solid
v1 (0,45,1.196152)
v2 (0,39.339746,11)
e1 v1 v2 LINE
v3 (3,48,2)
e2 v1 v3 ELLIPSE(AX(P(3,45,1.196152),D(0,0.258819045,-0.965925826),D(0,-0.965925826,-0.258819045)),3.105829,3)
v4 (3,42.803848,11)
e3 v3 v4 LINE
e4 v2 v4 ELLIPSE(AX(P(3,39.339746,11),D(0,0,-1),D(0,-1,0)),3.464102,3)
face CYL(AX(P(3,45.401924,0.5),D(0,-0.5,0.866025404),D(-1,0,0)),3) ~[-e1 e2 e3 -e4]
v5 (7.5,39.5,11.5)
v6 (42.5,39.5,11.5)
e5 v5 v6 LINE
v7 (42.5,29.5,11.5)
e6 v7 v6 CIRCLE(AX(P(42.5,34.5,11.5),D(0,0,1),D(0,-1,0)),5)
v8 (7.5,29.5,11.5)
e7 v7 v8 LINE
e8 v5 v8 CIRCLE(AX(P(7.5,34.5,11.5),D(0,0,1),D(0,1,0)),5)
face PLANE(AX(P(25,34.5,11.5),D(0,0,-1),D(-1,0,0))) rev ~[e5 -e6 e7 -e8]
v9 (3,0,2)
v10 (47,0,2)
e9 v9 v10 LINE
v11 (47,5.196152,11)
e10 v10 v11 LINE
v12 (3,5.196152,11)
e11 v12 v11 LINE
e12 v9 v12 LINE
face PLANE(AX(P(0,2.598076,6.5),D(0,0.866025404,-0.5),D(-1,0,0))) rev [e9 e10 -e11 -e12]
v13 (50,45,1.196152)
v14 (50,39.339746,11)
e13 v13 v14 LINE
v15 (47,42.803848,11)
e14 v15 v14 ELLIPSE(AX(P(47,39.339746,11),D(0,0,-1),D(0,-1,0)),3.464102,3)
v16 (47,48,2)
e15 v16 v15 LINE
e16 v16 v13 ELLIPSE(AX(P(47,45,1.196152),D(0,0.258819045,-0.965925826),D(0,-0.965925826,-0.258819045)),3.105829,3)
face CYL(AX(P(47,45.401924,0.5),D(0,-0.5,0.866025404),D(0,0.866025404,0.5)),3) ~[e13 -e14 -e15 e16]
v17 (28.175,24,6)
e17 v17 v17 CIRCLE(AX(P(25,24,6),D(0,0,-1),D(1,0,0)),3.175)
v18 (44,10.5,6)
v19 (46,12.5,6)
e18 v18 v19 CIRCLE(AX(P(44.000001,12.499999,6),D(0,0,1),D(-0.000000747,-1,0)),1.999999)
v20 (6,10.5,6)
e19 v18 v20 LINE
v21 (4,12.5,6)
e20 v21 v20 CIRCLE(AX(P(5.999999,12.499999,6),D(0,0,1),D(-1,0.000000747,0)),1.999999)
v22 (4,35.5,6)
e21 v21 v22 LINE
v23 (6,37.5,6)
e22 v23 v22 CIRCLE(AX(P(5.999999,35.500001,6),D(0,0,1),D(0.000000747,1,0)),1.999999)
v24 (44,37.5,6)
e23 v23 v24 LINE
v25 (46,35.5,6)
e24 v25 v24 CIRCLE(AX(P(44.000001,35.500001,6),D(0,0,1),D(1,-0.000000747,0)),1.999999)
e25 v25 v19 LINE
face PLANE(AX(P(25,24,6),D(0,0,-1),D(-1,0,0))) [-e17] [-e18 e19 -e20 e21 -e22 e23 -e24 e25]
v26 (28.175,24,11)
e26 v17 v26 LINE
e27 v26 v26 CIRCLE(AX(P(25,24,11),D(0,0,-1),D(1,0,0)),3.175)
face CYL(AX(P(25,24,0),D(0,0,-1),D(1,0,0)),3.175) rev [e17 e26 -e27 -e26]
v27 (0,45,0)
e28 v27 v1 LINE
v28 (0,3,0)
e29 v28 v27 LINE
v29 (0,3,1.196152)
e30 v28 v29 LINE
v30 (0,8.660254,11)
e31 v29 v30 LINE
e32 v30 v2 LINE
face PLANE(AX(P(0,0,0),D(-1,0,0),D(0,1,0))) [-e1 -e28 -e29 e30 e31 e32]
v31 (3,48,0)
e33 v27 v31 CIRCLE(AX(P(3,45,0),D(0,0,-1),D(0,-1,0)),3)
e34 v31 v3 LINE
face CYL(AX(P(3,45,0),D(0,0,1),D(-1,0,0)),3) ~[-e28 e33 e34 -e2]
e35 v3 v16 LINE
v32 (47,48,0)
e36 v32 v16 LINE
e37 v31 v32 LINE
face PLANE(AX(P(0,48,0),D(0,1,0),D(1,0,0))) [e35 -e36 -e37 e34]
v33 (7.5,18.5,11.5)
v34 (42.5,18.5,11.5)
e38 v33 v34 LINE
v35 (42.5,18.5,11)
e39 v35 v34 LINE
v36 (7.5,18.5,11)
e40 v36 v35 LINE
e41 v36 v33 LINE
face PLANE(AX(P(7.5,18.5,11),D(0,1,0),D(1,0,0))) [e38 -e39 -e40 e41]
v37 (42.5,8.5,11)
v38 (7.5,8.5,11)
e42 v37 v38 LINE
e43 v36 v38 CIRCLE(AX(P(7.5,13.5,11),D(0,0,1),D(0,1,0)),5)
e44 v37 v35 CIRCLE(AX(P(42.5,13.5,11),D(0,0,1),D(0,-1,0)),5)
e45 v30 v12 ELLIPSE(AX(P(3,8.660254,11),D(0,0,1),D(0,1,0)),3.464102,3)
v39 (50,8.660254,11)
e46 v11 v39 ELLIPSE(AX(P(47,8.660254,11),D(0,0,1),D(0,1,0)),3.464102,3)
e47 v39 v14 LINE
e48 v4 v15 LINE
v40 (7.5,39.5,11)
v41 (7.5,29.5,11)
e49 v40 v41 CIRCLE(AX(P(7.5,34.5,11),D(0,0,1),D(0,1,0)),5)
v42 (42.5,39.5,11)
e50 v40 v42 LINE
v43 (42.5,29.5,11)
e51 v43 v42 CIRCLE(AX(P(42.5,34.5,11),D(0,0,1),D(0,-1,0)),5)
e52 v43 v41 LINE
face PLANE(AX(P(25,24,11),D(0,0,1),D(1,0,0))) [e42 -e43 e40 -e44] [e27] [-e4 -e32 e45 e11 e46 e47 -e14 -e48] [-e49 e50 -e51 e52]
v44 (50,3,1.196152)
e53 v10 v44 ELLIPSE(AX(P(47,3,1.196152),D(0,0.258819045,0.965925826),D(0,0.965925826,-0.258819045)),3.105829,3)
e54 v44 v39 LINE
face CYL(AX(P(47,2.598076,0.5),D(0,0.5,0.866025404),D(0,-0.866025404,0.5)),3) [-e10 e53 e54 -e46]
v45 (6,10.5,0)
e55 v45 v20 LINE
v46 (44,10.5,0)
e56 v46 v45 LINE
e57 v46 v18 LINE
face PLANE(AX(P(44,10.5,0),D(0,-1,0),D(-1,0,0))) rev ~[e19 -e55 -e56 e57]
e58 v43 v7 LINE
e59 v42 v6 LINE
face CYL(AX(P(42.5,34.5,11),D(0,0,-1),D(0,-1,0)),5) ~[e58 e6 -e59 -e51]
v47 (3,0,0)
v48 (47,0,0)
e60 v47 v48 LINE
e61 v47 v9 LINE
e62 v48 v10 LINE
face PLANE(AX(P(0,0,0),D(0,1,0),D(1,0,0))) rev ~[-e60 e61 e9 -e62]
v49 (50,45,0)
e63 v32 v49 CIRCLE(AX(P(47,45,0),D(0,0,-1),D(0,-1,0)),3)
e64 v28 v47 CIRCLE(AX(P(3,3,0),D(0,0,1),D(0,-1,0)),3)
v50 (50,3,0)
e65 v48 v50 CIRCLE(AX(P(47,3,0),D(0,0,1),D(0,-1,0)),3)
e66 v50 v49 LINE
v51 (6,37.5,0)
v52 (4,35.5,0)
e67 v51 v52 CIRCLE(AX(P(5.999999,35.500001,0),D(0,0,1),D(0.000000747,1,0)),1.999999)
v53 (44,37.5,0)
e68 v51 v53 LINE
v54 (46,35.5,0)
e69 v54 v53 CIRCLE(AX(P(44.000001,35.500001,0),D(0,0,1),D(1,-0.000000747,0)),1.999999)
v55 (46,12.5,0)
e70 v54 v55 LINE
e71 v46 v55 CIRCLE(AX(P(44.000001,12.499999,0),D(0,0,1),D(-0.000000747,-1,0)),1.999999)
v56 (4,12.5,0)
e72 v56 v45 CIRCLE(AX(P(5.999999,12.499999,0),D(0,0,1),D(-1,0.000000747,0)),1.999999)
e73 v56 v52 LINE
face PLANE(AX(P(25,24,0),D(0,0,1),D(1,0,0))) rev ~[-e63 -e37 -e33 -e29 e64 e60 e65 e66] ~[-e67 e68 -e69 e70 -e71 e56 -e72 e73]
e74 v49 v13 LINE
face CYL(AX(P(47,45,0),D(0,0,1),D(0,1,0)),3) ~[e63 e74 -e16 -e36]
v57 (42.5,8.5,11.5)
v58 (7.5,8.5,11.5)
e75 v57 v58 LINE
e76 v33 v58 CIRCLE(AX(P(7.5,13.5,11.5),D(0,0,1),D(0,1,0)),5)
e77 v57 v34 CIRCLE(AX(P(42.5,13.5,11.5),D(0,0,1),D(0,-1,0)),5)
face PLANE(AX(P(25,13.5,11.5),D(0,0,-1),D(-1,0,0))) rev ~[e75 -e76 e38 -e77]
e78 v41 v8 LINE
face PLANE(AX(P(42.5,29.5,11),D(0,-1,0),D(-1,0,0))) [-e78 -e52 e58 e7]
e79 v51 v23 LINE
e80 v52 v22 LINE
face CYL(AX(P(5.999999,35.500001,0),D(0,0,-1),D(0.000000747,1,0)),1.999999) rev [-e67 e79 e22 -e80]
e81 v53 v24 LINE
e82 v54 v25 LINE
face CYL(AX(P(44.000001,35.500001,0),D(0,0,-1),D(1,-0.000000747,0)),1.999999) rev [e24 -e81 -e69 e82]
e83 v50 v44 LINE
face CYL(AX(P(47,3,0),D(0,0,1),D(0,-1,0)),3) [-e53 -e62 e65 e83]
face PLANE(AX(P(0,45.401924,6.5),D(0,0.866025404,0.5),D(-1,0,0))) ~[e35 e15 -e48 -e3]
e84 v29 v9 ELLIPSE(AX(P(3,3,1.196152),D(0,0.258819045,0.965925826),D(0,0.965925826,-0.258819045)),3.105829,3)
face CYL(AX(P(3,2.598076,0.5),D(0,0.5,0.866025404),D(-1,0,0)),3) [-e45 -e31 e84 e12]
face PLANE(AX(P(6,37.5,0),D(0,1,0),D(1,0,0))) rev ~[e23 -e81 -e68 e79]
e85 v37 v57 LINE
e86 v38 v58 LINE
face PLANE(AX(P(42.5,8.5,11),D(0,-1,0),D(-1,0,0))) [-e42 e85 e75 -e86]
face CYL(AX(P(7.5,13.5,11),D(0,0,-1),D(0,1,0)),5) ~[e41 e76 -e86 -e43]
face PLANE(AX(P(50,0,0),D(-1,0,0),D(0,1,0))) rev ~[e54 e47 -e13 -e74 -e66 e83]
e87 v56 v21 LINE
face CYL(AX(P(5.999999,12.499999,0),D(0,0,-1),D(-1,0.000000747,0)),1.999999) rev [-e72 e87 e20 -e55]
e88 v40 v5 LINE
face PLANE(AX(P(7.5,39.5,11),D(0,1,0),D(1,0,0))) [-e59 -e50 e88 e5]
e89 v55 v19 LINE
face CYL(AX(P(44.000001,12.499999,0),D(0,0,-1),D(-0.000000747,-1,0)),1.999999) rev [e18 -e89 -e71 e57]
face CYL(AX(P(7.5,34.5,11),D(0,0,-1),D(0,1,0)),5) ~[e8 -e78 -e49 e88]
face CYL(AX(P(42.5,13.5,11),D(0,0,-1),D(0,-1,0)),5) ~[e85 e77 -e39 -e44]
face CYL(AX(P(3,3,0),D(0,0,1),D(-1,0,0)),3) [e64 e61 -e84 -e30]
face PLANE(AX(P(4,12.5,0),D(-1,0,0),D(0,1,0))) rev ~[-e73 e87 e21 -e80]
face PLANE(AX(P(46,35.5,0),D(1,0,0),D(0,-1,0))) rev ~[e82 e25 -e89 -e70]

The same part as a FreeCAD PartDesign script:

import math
import FreeCAD as App
import Part
import Sketcher

V = App.Vector
Q = App.Units.Quantity


def edges_at(feature, points):
    """Names of the edges that pass closest to the given points."""
    edges = feature.Shape.Edges
    near = lambda p: min(range(len(edges)), key=lambda i: edges[i].distToShape(Part.Vertex(*p))[0])
    return sorted({f"Edge{near(p) + 1}" for p in points})


def add_polygon(sketch, points):
    """Adds a closed chain of lines whose ends are joined by coincident constraints."""
    first, n = sketch.GeometryCount, len(points)
    for a, b in zip(points, points[1:] + points[:1]):
        sketch.addGeometry(Part.LineSegment(App.Vector(*a, 0), App.Vector(*b, 0)), False)
    for i in range(n):
        sketch.addConstraint(Sketcher.Constraint("Coincident", first + i, 2, first + (i + 1) % n, 1))

doc = App.newDocument("Part")
body = doc.addObject("PartDesign::Body", "Body")

# Sketch on XY plane
sketch1 = doc.addObject("Sketcher::SketchObject", "Sketch")
body.addObject(sketch1)
sketch1.AttachmentSupport = (doc.XY_Plane, [""])
sketch1.MapMode = "FlatFace"
add_polygon(sketch1, [(0, 48), (0, 0), (50, 0), (50, 48)])  # lines 0-3
sketch1.addConstraint(Sketcher.Constraint("Vertical", 0))
sketch1.addConstraint(Sketcher.Constraint("Horizontal", 1))
sketch1.addConstraint(Sketcher.Constraint("Vertical", 2))
sketch1.addConstraint(Sketcher.Constraint("Horizontal", 3))
sketch1.addConstraint(Sketcher.Constraint("Coincident", 0, 2, -1, 1))
sketch1.addConstraint(Sketcher.Constraint("DistanceX", 1, 1, 1, 2, Q("50 mm")))
sketch1.addConstraint(Sketcher.Constraint("DistanceY", 0, 2, 0, 1, Q("48 mm")))
pad1 = doc.addObject("PartDesign::Pad", "Pad")
body.addObject(pad1)
pad1.Profile = sketch1
pad1.Length = 11
doc.recompute()

chamfer = doc.addObject("PartDesign::Chamfer", "Chamfer")
body.addObject(chamfer)
chamfer.Base = (pad1, edges_at(pad1, [(25, 0, 11)]))
chamfer.ChamferType = "Distance and Angle"
chamfer.Size = 9
chamfer.Angle = 30
doc.recompute()

chamfer2 = doc.addObject("PartDesign::Chamfer", "Chamfer001")
body.addObject(chamfer2)
chamfer2.Base = (chamfer, edges_at(chamfer, [(25, 48, 11)]))
chamfer2.ChamferType = "Distance and Angle"
chamfer2.Size = 9
chamfer2.Angle = 30
chamfer2.FlipDirection = True
doc.recompute()

fillet = doc.addObject("PartDesign::Fillet", "Fillet")
body.addObject(fillet)
fillet.Base = (chamfer2, edges_at(chamfer2, [
    (50, 2.598, 6.5),
    (50, 0, 1),
    (50, 45.402, 6.5),
    (50, 48, 1),
    (0, 45.402, 6.5),
    (0, 48, 1),
    (0, 2.598, 6.5),
    (0, 0, 1),
]))
fillet.Radius = 3

# Sketch on XY plane
sketch2 = doc.addObject("Sketcher::SketchObject", "Sketch001")
body.addObject(sketch2)
sketch2.AttachmentSupport = (doc.XY_Plane, [""])
sketch2.MapMode = "FlatFace"
sketch2.AttachmentOffset = App.Placement(V(0, 0, 11), App.Rotation())
sketch2.addGeometry(Part.LineSegment(V(42.5, 39.5, 0), V(7.5, 39.5, 0)), False)
sketch2.addGeometry(Part.ArcOfCircle(Part.Circle(V(7.5, 34.5, 0), V(0, 0, 1), 5), math.radians(90), math.radians(270)), False)
sketch2.addGeometry(Part.LineSegment(V(7.5, 29.5, 0), V(42.5, 29.5, 0)), False)
sketch2.addGeometry(Part.ArcOfCircle(Part.Circle(V(42.5, 34.5, 0), V(0, 0, 1), 5), math.radians(-90), math.radians(90)), False)
sketch2.addGeometry(Part.LineSegment(V(42.5, 18.5, 0), V(7.5, 18.5, 0)), False)
sketch2.addGeometry(Part.ArcOfCircle(Part.Circle(V(7.5, 13.5, 0), V(0, 0, 1), 5), math.radians(90), math.radians(270)), False)
sketch2.addGeometry(Part.LineSegment(V(7.5, 8.5, 0), V(42.5, 8.5, 0)), False)
sketch2.addGeometry(Part.ArcOfCircle(Part.Circle(V(42.5, 13.5, 0), V(0, 0, 1), 5), math.radians(-90), math.radians(90)), False)
sketch2.addConstraint(Sketcher.Constraint("Tangent", 0, 2, 1, 1))
sketch2.addConstraint(Sketcher.Constraint("Tangent", 1, 2, 2, 1))
sketch2.addConstraint(Sketcher.Constraint("Tangent", 2, 2, 3, 1))
sketch2.addConstraint(Sketcher.Constraint("Tangent", 3, 2, 0, 1))
sketch2.addConstraint(Sketcher.Constraint("Tangent", 4, 2, 5, 1))
sketch2.addConstraint(Sketcher.Constraint("Tangent", 5, 2, 6, 1))
sketch2.addConstraint(Sketcher.Constraint("Tangent", 6, 2, 7, 1))
sketch2.addConstraint(Sketcher.Constraint("Tangent", 7, 2, 4, 1))
sketch2.addConstraint(Sketcher.Constraint("Horizontal", 0))
sketch2.addConstraint(Sketcher.Constraint("Horizontal", 2))
sketch2.addConstraint(Sketcher.Constraint("Horizontal", 4))
sketch2.addConstraint(Sketcher.Constraint("Horizontal", 6))
sketch2.addConstraint(Sketcher.Constraint("Equal", 3, 5))
sketch2.addConstraint(Sketcher.Constraint("Vertical", 1, 3, 5, 3))
sketch2.addConstraint(Sketcher.Constraint("Vertical", 3, 3, 7, 3))
sketch2.addConstraint(Sketcher.Constraint("Radius", 1, Q("5 mm")))
sketch2.addConstraint(Sketcher.Constraint("DistanceX", 0, 2, 0, 1, Q("35 mm")))
sketch2.addConstraint(Sketcher.Constraint("DistanceY", 5, 3, 1, 3, Q("21 mm")))
sketch2.addConstraint(Sketcher.Constraint("DistanceX", -1, 1, 1, 3, Q("7.5 mm")))
sketch2.addConstraint(Sketcher.Constraint("DistanceY", -1, 1, 1, 3, Q("34.5 mm")))
pad2 = doc.addObject("PartDesign::Pad", "Pad001")
body.addObject(pad2)
pad2.Profile = sketch2
pad2.Length = 0.5

# Sketch on XY plane
sketch3 = doc.addObject("Sketcher::SketchObject", "Sketch002")
body.addObject(sketch3)
sketch3.AttachmentSupport = (doc.XY_Plane, [""])
sketch3.MapMode = "FlatFace"
sketch3.addGeometry(Part.Circle(V(25, 24, 0), V(0, 0, 1), 3.175), False)
sketch3.addConstraint(Sketcher.Constraint("Diameter", 0, Q("6.35 mm")))
sketch3.addConstraint(Sketcher.Constraint("DistanceX", -1, 1, 0, 3, Q("25 mm")))
sketch3.addConstraint(Sketcher.Constraint("DistanceY", -1, 1, 0, 3, Q("24 mm")))
pocket1 = doc.addObject("PartDesign::Pocket", "Pocket")
body.addObject(pocket1)
pocket1.Profile = sketch3
pocket1.Type = "ThroughAll"
pocket1.Reversed = True

# Sketch on XY plane
sketch4 = doc.addObject("Sketcher::SketchObject", "Sketch003")
body.addObject(sketch4)
sketch4.AttachmentSupport = (doc.XY_Plane, [""])
sketch4.MapMode = "FlatFace"
sketch4.addGeometry(Part.LineSegment(V(44, 37.5, 0), V(6, 37.5, 0)), False)
sketch4.addGeometry(Part.ArcOfCircle(Part.Circle(V(5.999999, 35.500001, 0), V(0, 0, 1), 1.999999), math.radians(89.999957), math.radians(180.000043)), False)
sketch4.addGeometry(Part.LineSegment(V(4, 35.5, 0), V(4, 12.5, 0)), False)
sketch4.addGeometry(Part.ArcOfCircle(Part.Circle(V(5.999999, 12.499999, 0), V(0, 0, 1), 1.999999), math.radians(179.999957), math.radians(270.000043)), False)
sketch4.addGeometry(Part.LineSegment(V(6, 10.5, 0), V(44, 10.5, 0)), False)
sketch4.addGeometry(Part.ArcOfCircle(Part.Circle(V(44.000001, 12.499999, 0), V(0, 0, 1), 1.999999), math.radians(-90.000043), math.radians(0.000043)), False)
sketch4.addGeometry(Part.LineSegment(V(46, 12.5, 0), V(46, 35.5, 0)), False)
sketch4.addGeometry(Part.ArcOfCircle(Part.Circle(V(44.000001, 35.500001, 0), V(0, 0, 1), 1.999999), math.radians(-0.000043), math.radians(90.000043)), False)
sketch4.addConstraint(Sketcher.Constraint("Tangent", 0, 2, 1, 1))
sketch4.addConstraint(Sketcher.Constraint("Tangent", 1, 2, 2, 1))
sketch4.addConstraint(Sketcher.Constraint("Tangent", 2, 2, 3, 1))
sketch4.addConstraint(Sketcher.Constraint("Tangent", 3, 2, 4, 1))
sketch4.addConstraint(Sketcher.Constraint("Tangent", 4, 2, 5, 1))
sketch4.addConstraint(Sketcher.Constraint("Tangent", 5, 2, 6, 1))
sketch4.addConstraint(Sketcher.Constraint("Tangent", 6, 2, 7, 1))
sketch4.addConstraint(Sketcher.Constraint("Tangent", 7, 2, 0, 1))
sketch4.addConstraint(Sketcher.Constraint("Horizontal", 0))
sketch4.addConstraint(Sketcher.Constraint("Vertical", 2))
sketch4.addConstraint(Sketcher.Constraint("Horizontal", 4))
sketch4.addConstraint(Sketcher.Constraint("Vertical", 6))
sketch4.addConstraint(Sketcher.Constraint("Equal", 1, 3))
sketch4.addConstraint(Sketcher.Constraint("Equal", 3, 5))
sketch4.addConstraint(Sketcher.Constraint("Equal", 5, 7))
sketch4.addConstraint(Sketcher.Constraint("Radius", 1, Q("1.999999 mm")))
sketch4.addConstraint(Sketcher.Constraint("DistanceX", 0, 2, 0, 1, Q("38 mm")))
sketch4.addConstraint(Sketcher.Constraint("DistanceY", 2, 2, 2, 1, Q("23 mm")))
sketch4.addConstraint(Sketcher.Constraint("DistanceX", -1, 1, 1, 3, Q("5.999999 mm")))
sketch4.addConstraint(Sketcher.Constraint("DistanceY", -1, 1, 1, 3, Q("35.500001 mm")))
pocket2 = doc.addObject("PartDesign::Pocket", "Pocket001")
body.addObject(pocket2)
pocket2.Profile = sketch4
pocket2.Length = 6
pocket2.Reversed = True

doc.recompute()
